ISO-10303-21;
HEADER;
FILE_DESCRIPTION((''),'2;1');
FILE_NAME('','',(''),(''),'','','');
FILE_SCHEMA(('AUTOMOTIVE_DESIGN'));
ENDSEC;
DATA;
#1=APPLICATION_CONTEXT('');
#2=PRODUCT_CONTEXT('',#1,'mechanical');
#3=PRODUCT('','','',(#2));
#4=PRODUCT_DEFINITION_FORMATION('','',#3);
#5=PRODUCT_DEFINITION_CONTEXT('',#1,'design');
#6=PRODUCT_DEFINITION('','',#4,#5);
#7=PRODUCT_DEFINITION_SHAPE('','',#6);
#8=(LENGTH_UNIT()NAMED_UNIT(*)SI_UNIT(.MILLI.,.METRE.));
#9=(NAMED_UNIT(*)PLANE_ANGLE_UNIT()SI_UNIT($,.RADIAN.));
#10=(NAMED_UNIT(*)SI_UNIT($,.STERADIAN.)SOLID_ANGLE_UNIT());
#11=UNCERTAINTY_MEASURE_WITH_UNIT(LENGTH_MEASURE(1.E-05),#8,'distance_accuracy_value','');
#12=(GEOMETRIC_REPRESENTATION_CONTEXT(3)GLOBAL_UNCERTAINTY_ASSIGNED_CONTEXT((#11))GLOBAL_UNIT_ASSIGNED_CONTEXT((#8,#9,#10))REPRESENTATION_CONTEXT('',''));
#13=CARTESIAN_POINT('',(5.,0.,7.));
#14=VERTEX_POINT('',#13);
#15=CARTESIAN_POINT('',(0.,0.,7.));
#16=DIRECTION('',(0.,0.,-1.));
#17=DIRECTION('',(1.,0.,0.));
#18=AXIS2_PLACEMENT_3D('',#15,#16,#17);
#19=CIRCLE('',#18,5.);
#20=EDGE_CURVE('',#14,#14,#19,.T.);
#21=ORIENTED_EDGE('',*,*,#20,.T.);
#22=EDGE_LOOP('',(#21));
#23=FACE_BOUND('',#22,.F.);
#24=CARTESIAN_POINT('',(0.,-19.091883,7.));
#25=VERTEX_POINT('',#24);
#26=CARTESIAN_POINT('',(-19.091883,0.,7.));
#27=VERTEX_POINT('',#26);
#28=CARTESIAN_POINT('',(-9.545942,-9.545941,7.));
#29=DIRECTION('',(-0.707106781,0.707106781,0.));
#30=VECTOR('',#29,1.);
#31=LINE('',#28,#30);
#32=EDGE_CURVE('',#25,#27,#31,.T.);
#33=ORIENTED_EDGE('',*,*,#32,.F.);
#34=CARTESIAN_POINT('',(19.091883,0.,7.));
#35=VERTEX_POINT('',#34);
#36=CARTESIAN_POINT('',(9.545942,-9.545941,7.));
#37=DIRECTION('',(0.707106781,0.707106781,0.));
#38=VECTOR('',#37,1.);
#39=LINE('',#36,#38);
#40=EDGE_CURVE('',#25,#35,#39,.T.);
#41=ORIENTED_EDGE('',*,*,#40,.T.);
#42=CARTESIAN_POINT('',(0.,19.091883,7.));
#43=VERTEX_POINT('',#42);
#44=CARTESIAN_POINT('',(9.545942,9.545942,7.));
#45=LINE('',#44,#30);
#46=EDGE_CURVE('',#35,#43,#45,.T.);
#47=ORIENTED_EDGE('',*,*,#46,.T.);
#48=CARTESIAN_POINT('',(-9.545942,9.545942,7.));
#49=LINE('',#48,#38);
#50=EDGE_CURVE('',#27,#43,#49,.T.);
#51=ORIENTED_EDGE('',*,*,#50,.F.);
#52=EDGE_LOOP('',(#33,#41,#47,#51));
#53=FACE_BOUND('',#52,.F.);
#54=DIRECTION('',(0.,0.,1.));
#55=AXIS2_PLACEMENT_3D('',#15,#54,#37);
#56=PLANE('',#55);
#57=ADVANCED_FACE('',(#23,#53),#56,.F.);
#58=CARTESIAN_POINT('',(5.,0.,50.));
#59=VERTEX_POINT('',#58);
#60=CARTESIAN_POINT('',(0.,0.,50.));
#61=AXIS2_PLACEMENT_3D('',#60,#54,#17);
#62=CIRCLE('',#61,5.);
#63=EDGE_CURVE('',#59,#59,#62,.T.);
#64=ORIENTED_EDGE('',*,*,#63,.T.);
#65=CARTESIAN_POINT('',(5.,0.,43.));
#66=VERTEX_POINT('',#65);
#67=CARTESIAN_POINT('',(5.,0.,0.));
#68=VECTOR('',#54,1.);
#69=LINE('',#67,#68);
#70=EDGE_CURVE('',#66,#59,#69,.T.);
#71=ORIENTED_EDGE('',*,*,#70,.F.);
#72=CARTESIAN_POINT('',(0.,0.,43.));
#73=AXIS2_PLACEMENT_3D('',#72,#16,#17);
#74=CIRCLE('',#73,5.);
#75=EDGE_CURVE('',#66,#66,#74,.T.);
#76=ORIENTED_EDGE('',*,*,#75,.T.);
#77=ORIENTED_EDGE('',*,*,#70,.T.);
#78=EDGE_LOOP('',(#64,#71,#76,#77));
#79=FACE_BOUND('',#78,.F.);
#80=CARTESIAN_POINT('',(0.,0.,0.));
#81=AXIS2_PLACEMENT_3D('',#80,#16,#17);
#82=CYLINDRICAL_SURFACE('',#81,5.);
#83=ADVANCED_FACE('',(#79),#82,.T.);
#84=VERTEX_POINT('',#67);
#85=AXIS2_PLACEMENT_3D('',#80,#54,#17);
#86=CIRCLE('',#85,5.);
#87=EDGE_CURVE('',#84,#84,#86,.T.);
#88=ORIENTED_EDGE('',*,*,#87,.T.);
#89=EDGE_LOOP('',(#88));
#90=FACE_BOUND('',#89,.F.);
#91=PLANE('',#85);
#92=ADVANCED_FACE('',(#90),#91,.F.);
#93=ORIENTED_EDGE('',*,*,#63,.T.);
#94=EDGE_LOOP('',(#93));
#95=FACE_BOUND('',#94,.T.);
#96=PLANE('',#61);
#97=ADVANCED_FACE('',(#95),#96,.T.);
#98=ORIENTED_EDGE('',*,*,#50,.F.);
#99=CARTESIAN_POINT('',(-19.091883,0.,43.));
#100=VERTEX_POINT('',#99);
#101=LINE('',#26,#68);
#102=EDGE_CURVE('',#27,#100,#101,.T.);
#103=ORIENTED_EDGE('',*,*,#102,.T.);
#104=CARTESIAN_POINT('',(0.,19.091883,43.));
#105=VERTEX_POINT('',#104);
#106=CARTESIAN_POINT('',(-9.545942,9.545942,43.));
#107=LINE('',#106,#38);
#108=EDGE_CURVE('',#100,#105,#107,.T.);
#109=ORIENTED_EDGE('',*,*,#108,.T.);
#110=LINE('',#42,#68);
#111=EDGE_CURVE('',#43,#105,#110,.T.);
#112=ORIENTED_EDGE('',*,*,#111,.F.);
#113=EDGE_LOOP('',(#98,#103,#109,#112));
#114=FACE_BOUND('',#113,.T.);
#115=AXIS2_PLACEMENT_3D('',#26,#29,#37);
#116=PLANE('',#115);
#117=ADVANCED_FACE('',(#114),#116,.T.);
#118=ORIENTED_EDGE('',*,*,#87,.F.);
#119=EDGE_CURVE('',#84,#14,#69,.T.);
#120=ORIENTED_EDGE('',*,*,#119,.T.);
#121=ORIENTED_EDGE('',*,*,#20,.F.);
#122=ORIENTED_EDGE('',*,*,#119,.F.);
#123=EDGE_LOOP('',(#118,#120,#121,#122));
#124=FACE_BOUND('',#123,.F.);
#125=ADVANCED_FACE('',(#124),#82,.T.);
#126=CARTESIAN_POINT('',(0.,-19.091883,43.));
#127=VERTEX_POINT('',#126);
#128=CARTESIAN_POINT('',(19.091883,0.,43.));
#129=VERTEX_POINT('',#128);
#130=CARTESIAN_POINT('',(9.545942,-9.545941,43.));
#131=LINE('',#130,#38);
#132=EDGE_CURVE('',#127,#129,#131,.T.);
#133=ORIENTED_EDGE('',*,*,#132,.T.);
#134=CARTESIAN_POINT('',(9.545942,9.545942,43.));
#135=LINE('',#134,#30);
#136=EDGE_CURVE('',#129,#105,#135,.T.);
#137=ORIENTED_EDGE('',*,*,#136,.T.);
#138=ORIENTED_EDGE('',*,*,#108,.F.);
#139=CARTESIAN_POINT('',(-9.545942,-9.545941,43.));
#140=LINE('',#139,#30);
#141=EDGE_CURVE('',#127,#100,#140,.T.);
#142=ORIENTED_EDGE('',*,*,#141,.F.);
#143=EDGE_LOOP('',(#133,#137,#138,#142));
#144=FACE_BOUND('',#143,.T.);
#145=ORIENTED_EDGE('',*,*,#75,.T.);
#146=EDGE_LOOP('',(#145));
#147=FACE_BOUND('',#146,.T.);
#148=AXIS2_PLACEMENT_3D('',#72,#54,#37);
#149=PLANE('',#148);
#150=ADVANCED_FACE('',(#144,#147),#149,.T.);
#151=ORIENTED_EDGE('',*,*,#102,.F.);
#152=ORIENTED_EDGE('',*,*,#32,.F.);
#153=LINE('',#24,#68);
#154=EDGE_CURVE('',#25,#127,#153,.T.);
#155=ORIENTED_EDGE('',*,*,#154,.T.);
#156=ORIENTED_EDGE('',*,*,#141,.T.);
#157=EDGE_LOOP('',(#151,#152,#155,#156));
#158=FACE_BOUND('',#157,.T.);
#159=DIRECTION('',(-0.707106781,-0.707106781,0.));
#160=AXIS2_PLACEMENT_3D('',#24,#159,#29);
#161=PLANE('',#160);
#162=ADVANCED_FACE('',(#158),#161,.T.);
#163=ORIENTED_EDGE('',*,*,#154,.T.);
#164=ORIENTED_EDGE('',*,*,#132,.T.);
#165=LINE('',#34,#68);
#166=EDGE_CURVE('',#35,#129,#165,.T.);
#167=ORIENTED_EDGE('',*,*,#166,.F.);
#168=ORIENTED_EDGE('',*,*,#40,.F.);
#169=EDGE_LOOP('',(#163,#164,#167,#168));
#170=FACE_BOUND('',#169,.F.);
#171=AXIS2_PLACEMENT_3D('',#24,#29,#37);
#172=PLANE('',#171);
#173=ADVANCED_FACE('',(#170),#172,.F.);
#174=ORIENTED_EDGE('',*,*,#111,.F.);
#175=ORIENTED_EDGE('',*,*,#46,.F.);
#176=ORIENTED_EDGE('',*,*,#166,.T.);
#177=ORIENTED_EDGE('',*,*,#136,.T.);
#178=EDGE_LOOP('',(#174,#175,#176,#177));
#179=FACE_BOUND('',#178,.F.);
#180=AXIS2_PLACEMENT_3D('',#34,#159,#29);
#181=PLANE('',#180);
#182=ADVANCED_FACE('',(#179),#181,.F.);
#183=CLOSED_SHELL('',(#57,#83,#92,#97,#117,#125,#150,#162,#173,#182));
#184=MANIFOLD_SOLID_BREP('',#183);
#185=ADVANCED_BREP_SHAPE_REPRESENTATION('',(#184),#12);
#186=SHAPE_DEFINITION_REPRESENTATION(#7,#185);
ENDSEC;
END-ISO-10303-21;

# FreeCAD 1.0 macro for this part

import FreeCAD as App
import Part
import Sketcher

V = App.Vector
Q = App.Units.Quantity


def add_polygon(sketch, points):
    """Adds a closed chain of lines whose ends are joined by coincident constraints."""
    first, n = sketch.GeometryCount, len(points)
    for a, b in zip(points, points[1:] + points[:1]):
        sketch.addGeometry(Part.LineSegment(App.Vector(*a, 0), App.Vector(*b, 0)), False)
    for i in range(n):
        sketch.addConstraint(Sketcher.Constraint("Coincident", first + i, 2, first + (i + 1) % n, 1))

doc = App.newDocument("Part")
body = doc.addObject("PartDesign::Body", "Body")

sketch1 = body.newObject("Sketcher::SketchObject", "Sketch")
sketch1.AttachmentSupport = (doc.getObject("XY_Plane"), [""])
sketch1.MapMode = "FlatFace"
add_polygon(sketch1, [(0, 27), (0, 0), (27, 0), (27, 27)])
sketch1.addConstraint([
    Sketcher.Constraint("Vertical", 0),
    Sketcher.Constraint("Horizontal", 1),
    Sketcher.Constraint("Vertical", 2),
    Sketcher.Constraint("Horizontal", 3),
    Sketcher.Constraint("Coincident", 0, 2, -1, 1),
    Sketcher.Constraint("Equal", 3, 0),
    Sketcher.Constraint("DistanceX", 1, 1, 1, 2, Q("27 mm")),
])
pad1 = body.newObject("PartDesign::Pad", "Pad")
pad1.Profile = sketch1
pad1.Length = 36
body2 = doc.addObject("PartDesign::Body", "Body001")
doc.recompute()

body.Placement = App.Placement(V(0, -19.091883, 7), App.Rotation(V(0, 0, 1), 45))
boolean = body2.newObject("PartDesign::Boolean", "Boolean")
boolean.Type = "Fuse"
boolean.addObjects([body])
body3 = doc.addObject("PartDesign::Body", "Body002")

sketch2 = body3.newObject("Sketcher::SketchObject", "Sketch001")
sketch2.AttachmentSupport = (doc.getObject("XY_Plane002"), [""])
sketch2.MapMode = "FlatFace"
sketch2.addGeometry(Part.Circle(V(0, 0, 0), V(0, 0, 1), 5), False)
sketch2.addConstraint([
    Sketcher.Constraint("Coincident", 0, 3, -1, 1),
    Sketcher.Constraint("Diameter", 0, Q("10 mm")),
])
pad2 = body3.newObject("PartDesign::Pad", "Pad001")
pad2.Profile = sketch2
pad2.Length = 50
doc.recompute()

boolean2 = body3.newObject("PartDesign::Boolean", "Boolean001")
boolean2.Type = "Fuse"
boolean2.addObjects([body2])

doc.recompute()
